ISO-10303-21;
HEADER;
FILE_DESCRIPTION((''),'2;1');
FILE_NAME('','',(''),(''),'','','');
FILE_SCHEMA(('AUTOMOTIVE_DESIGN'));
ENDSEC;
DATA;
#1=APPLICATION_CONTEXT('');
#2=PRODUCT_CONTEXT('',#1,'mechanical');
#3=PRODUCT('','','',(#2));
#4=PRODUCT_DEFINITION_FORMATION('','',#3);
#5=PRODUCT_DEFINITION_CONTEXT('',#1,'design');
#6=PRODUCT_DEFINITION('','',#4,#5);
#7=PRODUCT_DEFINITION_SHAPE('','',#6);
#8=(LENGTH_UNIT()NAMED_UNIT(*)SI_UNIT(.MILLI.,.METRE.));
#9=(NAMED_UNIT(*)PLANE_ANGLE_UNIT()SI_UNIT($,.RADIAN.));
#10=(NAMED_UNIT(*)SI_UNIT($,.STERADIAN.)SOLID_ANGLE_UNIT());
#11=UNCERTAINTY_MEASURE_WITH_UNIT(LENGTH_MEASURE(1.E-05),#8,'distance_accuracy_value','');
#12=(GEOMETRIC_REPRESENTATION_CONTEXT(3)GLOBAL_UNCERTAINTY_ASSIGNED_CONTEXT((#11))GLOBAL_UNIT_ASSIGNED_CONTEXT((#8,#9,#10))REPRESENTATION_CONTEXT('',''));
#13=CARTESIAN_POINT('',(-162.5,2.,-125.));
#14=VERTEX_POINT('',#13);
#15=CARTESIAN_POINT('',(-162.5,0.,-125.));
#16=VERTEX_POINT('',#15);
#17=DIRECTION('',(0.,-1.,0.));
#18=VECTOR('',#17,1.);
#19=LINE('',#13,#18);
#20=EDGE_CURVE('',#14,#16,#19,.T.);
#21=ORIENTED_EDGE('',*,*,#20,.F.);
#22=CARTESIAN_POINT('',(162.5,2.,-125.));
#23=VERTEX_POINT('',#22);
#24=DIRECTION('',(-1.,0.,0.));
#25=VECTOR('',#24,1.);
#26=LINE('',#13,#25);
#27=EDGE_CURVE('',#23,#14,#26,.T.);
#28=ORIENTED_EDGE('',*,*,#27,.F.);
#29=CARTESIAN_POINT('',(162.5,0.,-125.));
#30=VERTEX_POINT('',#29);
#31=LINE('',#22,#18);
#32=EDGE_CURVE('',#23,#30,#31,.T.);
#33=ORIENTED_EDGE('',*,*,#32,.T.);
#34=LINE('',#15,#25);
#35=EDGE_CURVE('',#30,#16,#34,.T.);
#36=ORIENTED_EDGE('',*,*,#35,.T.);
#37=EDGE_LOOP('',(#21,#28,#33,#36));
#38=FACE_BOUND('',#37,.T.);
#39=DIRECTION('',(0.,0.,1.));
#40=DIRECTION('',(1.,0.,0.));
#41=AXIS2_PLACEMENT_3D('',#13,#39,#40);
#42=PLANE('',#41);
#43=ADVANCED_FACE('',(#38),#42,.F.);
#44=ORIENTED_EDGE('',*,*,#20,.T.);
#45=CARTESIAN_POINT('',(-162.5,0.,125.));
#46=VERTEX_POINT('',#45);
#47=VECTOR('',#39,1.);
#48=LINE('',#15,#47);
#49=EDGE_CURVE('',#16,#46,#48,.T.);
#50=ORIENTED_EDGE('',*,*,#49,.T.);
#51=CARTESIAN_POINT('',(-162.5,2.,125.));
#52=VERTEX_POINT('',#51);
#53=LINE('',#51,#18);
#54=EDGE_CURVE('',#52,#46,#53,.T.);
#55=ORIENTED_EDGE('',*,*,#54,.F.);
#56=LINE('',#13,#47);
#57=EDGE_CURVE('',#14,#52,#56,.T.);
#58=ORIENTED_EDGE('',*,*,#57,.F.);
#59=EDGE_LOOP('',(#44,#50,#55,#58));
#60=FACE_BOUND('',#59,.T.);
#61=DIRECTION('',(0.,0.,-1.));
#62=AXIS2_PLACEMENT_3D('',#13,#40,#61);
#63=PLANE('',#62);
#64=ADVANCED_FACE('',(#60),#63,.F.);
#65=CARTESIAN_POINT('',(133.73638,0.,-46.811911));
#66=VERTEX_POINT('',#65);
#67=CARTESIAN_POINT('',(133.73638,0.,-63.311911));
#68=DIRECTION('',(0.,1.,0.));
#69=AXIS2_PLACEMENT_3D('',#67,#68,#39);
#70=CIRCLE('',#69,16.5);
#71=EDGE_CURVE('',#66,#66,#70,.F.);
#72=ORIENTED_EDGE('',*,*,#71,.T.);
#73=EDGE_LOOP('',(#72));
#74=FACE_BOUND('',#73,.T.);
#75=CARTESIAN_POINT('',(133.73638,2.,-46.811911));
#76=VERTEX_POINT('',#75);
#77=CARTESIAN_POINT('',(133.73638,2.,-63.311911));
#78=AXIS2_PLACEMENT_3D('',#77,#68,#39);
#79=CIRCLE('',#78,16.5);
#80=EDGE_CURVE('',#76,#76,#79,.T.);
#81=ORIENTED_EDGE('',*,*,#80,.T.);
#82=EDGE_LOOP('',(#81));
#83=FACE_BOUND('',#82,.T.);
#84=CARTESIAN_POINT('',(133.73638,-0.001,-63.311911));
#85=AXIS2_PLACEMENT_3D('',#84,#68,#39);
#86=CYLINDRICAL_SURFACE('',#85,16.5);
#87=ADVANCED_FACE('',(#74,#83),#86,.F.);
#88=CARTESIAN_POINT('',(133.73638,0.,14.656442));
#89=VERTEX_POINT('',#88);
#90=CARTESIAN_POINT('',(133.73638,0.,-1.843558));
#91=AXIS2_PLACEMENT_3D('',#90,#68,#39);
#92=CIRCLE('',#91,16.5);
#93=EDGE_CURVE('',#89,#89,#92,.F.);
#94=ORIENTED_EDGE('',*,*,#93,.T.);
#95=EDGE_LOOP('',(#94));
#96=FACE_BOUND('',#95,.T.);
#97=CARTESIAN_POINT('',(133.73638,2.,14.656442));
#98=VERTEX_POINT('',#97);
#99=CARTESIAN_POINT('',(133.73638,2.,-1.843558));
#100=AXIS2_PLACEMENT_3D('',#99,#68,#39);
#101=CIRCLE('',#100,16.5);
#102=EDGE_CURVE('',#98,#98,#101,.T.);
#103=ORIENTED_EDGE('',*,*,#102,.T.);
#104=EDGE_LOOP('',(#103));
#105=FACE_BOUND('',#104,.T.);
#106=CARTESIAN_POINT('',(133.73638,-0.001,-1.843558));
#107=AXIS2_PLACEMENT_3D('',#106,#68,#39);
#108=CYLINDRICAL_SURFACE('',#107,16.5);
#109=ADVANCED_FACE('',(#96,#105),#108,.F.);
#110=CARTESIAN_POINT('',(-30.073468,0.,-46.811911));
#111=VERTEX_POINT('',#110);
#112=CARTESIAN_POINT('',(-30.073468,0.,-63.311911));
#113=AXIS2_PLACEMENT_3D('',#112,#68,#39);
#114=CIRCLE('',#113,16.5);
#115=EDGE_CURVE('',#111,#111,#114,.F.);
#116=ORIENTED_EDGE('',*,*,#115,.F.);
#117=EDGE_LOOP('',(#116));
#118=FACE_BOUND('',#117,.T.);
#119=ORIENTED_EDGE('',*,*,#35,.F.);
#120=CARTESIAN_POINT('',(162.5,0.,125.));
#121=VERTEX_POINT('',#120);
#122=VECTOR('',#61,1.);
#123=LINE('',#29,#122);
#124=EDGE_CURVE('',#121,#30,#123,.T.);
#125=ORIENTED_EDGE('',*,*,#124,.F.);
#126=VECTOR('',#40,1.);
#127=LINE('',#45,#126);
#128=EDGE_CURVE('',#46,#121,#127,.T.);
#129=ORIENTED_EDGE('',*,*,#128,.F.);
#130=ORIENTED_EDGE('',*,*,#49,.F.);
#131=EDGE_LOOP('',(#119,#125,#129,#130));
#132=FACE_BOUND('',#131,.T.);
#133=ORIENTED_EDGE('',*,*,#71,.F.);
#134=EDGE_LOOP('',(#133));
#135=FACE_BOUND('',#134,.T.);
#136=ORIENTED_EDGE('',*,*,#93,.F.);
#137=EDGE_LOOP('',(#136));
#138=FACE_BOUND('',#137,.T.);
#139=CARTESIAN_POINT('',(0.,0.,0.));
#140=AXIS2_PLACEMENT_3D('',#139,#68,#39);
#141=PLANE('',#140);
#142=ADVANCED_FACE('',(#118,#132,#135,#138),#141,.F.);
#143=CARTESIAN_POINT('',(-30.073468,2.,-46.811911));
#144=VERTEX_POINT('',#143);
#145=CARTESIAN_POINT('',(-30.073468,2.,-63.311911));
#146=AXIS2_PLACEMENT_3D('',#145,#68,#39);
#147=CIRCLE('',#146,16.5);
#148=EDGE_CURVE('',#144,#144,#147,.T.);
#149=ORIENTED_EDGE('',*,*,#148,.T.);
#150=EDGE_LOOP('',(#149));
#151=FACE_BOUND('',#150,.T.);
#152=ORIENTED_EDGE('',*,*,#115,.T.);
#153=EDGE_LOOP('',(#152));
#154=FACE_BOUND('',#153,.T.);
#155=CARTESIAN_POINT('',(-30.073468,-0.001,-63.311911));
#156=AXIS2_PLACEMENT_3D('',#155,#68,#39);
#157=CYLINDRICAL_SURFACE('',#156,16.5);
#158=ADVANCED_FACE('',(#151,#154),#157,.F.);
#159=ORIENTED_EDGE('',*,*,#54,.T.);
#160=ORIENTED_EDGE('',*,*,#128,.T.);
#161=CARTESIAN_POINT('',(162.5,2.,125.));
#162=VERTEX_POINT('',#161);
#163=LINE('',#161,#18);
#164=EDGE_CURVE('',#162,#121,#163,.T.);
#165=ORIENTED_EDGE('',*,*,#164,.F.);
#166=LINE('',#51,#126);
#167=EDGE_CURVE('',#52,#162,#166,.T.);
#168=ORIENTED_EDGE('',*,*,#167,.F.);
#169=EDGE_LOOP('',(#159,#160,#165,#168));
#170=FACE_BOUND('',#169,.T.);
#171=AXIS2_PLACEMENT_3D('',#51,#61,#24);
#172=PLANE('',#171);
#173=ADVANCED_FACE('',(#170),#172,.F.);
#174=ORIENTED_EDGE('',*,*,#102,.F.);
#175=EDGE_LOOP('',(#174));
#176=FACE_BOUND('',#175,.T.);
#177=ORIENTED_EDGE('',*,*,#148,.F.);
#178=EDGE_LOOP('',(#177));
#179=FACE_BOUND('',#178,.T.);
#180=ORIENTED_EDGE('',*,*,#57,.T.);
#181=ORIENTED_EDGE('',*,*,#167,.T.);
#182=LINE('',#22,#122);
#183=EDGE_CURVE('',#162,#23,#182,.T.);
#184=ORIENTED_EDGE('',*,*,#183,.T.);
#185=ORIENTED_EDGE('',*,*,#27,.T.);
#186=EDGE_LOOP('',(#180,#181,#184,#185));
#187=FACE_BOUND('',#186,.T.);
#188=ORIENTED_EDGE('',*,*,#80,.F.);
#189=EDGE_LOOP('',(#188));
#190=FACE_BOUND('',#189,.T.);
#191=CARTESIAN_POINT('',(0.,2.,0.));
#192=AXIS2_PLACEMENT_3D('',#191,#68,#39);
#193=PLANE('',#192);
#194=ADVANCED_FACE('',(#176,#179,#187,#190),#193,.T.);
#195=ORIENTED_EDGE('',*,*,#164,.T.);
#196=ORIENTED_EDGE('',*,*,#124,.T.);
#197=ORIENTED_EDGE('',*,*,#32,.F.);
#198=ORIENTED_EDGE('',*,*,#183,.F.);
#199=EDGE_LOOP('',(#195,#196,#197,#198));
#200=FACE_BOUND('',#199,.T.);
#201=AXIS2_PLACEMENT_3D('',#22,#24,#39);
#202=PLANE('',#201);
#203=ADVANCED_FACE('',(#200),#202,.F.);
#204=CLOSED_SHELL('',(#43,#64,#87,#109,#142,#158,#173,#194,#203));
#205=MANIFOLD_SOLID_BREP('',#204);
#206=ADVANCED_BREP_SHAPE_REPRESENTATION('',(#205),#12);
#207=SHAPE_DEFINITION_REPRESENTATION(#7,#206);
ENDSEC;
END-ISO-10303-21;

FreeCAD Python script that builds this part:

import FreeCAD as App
import Part
import Sketcher
from FreeCAD import Vector

doc = App.newDocument("Part")
body = doc.addObject("PartDesign::Body", "Body")

# Sketch on XZ plane
sketch1 = doc.addObject("Sketcher::SketchObject", "Sketch")
body.addObject(sketch1)
sketch1.AttachmentSupport = (doc.XZ_Plane, [""])
sketch1.MapMode = "FlatFace"
sketch1.addGeometry([
    Part.LineSegment(Vector(-162, -125, 0), Vector(-162, 125, 0)),
    Part.LineSegment(Vector(-162, 125, 0), Vector(162, 125, 0)),
    Part.LineSegment(Vector(162, 125, 0), Vector(162, -125, 0)),
    Part.LineSegment(Vector(162, -125, 0), Vector(-162, -125, 0)),
], False)
sketch1.addConstraint([
    Sketcher.Constraint("Coincident", 0, 2, 1, 1),
    Sketcher.Constraint("Coincident", 1, 2, 2, 1),
    Sketcher.Constraint("Coincident", 2, 2, 3, 1),
    Sketcher.Constraint("Coincident", 3, 2, 0, 1),
    Sketcher.Constraint("Vertical", 0),
    Sketcher.Constraint("Horizontal", 1),
    Sketcher.Constraint("Vertical", 2),
    Sketcher.Constraint("Horizontal", 3),
    Sketcher.Constraint("Symmetric", 0, 2, 2, 2, -1, 1),
    Sketcher.Constraint("DistanceX", 1, 1, 1, 2, 325.0),
    Sketcher.Constraint("DistanceY", 0, 1, 0, 2, 250.0),
])
pad1 = doc.addObject("PartDesign::Pad", "Pad")
body.addObject(pad1)
pad1.Profile = sketch1
pad1.Length = 2
pad1.Reversed = True

# Sketch on XZ plane
sketch2 = doc.addObject("Sketcher::SketchObject", "Sketch001")
body.addObject(sketch2)
sketch2.AttachmentSupport = (doc.XZ_Plane, [""])
sketch2.MapMode = "FlatFace"
sketch2.AttachmentOffset = App.Placement(Vector(0, 0, -2), App.Rotation())
sketch2.addGeometry(Part.Circle(Vector(134, -2, 0), Vector(0, 0, 1), 16), False)
sketch2.addConstraint([
    Sketcher.Constraint("Diameter", 0, 33.0),
    Sketcher.Constraint("DistanceX", -1, 1, 0, 3, 133.73638),
    Sketcher.Constraint("DistanceY", 0, 3, -1, 1, 1.843558),
])
pocket1 = doc.addObject("PartDesign::Pocket", "Pocket")
body.addObject(pocket1)
pocket1.Profile = sketch2
pocket1.Type = "UpToFirst"
pocket1.Reversed = True

# Sketch on XZ plane
sketch3 = doc.addObject("Sketcher::SketchObject", "Sketch002")
body.addObject(sketch3)
sketch3.AttachmentSupport = (doc.XZ_Plane, [""])
sketch3.MapMode = "FlatFace"
sketch3.AttachmentOffset = App.Placement(Vector(0, 0, -2), App.Rotation())
sketch3.addGeometry(Part.Circle(Vector(134, -63, 0), Vector(0, 0, 1), 16), False)
sketch3.addConstraint([
    Sketcher.Constraint("Diameter", 0, 33.0),
    Sketcher.Constraint("DistanceX", -1, 1, 0, 3, 133.73638),
    Sketcher.Constraint("DistanceY", 0, 3, -1, 1, 63.311911),
])
pocket2 = doc.addObject("PartDesign::Pocket", "Pocket001")
body.addObject(pocket2)
pocket2.Profile = sketch3
pocket2.Type = "UpToFirst"
pocket2.Reversed = True

# Sketch on XZ plane
sketch4 = doc.addObject("Sketcher::SketchObject", "Sketch003")
body.addObject(sketch4)
sketch4.AttachmentSupport = (doc.XZ_Plane, [""])
sketch4.MapMode = "FlatFace"
sketch4.AttachmentOffset = App.Placement(Vector(0, 0, -2), App.Rotation())
sketch4.addGeometry(Part.Circle(Vector(-30, -63, 0), Vector(0, 0, 1), 16), False)
sketch4.addConstraint([
    Sketcher.Constraint("Diameter", 0, 33.0),
    Sketcher.Constraint("DistanceX", 0, 3, -1, 1, 30.073468),
    Sketcher.Constraint("DistanceY", 0, 3, -1, 1, 63.311911),
])
pocket3 = doc.addObject("PartDesign::Pocket", "Pocket002")
body.addObject(pocket3)
pocket3.Profile = sketch4
pocket3.Type = "UpToFirst"
pocket3.Reversed = True

doc.recompute()
